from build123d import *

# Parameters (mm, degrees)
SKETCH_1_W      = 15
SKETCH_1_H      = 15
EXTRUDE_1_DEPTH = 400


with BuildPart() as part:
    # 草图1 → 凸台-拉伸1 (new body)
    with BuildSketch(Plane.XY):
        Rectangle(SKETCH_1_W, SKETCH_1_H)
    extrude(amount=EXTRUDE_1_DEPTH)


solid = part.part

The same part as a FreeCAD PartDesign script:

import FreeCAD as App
import Part
import Sketcher
from FreeCAD import Vector
Q = App.Units.Quantity

doc = App.newDocument("Part")
body = doc.addObject("PartDesign::Body", "Body")

sketch1 = body.newObject("Sketcher::SketchObject", "Sketch")
sketch1.AttachmentSupport = (doc.getObject("XY_Plane"), [""])
sketch1.MapMode = "FlatFace"
sketch1.addGeometry(Part.LineSegment(Vector(-7.5, 7.5, 0), Vector(-7.5, -7.5, 0)), False)
sketch1.addGeometry(Part.LineSegment(Vector(-7.5, -7.5, 0), Vector(7.5, -7.5, 0)), False)
sketch1.addGeometry(Part.LineSegment(Vector(7.5, -7.5, 0), Vector(7.5, 7.5, 0)), False)
sketch1.addGeometry(Part.LineSegment(Vector(7.5, 7.5, 0), Vector(-7.5, 7.5, 0)), False)
sketch1.addConstraint(Sketcher.Constraint("Coincident", 0, 2, 1, 1))
sketch1.addConstraint(Sketcher.Constraint("Coincident", 1, 2, 2, 1))
sketch1.addConstraint(Sketcher.Constraint("Coincident", 2, 2, 3, 1))
sketch1.addConstraint(Sketcher.Constraint("Coincident", 3, 2, 0, 1))
sketch1.addConstraint(Sketcher.Constraint("Vertical", 0))
sketch1.addConstraint(Sketcher.Constraint("Horizontal", 1))
sketch1.addConstraint(Sketcher.Constraint("Vertical", 2))
sketch1.addConstraint(Sketcher.Constraint("Horizontal", 3))
sketch1.addConstraint(Sketcher.Constraint("Symmetric", 0, 2, 2, 2, -1, 1))
sketch1.addConstraint(Sketcher.Constraint("Equal", 3, 0))
sketch1.addConstraint(Sketcher.Constraint("DistanceX", 1, 1, 1, 2, Q("15 mm")))
pad1 = body.newObject("PartDesign::Pad", "Pad")
pad1.Profile = sketch1
pad1.Length = 400

doc.recompute()
